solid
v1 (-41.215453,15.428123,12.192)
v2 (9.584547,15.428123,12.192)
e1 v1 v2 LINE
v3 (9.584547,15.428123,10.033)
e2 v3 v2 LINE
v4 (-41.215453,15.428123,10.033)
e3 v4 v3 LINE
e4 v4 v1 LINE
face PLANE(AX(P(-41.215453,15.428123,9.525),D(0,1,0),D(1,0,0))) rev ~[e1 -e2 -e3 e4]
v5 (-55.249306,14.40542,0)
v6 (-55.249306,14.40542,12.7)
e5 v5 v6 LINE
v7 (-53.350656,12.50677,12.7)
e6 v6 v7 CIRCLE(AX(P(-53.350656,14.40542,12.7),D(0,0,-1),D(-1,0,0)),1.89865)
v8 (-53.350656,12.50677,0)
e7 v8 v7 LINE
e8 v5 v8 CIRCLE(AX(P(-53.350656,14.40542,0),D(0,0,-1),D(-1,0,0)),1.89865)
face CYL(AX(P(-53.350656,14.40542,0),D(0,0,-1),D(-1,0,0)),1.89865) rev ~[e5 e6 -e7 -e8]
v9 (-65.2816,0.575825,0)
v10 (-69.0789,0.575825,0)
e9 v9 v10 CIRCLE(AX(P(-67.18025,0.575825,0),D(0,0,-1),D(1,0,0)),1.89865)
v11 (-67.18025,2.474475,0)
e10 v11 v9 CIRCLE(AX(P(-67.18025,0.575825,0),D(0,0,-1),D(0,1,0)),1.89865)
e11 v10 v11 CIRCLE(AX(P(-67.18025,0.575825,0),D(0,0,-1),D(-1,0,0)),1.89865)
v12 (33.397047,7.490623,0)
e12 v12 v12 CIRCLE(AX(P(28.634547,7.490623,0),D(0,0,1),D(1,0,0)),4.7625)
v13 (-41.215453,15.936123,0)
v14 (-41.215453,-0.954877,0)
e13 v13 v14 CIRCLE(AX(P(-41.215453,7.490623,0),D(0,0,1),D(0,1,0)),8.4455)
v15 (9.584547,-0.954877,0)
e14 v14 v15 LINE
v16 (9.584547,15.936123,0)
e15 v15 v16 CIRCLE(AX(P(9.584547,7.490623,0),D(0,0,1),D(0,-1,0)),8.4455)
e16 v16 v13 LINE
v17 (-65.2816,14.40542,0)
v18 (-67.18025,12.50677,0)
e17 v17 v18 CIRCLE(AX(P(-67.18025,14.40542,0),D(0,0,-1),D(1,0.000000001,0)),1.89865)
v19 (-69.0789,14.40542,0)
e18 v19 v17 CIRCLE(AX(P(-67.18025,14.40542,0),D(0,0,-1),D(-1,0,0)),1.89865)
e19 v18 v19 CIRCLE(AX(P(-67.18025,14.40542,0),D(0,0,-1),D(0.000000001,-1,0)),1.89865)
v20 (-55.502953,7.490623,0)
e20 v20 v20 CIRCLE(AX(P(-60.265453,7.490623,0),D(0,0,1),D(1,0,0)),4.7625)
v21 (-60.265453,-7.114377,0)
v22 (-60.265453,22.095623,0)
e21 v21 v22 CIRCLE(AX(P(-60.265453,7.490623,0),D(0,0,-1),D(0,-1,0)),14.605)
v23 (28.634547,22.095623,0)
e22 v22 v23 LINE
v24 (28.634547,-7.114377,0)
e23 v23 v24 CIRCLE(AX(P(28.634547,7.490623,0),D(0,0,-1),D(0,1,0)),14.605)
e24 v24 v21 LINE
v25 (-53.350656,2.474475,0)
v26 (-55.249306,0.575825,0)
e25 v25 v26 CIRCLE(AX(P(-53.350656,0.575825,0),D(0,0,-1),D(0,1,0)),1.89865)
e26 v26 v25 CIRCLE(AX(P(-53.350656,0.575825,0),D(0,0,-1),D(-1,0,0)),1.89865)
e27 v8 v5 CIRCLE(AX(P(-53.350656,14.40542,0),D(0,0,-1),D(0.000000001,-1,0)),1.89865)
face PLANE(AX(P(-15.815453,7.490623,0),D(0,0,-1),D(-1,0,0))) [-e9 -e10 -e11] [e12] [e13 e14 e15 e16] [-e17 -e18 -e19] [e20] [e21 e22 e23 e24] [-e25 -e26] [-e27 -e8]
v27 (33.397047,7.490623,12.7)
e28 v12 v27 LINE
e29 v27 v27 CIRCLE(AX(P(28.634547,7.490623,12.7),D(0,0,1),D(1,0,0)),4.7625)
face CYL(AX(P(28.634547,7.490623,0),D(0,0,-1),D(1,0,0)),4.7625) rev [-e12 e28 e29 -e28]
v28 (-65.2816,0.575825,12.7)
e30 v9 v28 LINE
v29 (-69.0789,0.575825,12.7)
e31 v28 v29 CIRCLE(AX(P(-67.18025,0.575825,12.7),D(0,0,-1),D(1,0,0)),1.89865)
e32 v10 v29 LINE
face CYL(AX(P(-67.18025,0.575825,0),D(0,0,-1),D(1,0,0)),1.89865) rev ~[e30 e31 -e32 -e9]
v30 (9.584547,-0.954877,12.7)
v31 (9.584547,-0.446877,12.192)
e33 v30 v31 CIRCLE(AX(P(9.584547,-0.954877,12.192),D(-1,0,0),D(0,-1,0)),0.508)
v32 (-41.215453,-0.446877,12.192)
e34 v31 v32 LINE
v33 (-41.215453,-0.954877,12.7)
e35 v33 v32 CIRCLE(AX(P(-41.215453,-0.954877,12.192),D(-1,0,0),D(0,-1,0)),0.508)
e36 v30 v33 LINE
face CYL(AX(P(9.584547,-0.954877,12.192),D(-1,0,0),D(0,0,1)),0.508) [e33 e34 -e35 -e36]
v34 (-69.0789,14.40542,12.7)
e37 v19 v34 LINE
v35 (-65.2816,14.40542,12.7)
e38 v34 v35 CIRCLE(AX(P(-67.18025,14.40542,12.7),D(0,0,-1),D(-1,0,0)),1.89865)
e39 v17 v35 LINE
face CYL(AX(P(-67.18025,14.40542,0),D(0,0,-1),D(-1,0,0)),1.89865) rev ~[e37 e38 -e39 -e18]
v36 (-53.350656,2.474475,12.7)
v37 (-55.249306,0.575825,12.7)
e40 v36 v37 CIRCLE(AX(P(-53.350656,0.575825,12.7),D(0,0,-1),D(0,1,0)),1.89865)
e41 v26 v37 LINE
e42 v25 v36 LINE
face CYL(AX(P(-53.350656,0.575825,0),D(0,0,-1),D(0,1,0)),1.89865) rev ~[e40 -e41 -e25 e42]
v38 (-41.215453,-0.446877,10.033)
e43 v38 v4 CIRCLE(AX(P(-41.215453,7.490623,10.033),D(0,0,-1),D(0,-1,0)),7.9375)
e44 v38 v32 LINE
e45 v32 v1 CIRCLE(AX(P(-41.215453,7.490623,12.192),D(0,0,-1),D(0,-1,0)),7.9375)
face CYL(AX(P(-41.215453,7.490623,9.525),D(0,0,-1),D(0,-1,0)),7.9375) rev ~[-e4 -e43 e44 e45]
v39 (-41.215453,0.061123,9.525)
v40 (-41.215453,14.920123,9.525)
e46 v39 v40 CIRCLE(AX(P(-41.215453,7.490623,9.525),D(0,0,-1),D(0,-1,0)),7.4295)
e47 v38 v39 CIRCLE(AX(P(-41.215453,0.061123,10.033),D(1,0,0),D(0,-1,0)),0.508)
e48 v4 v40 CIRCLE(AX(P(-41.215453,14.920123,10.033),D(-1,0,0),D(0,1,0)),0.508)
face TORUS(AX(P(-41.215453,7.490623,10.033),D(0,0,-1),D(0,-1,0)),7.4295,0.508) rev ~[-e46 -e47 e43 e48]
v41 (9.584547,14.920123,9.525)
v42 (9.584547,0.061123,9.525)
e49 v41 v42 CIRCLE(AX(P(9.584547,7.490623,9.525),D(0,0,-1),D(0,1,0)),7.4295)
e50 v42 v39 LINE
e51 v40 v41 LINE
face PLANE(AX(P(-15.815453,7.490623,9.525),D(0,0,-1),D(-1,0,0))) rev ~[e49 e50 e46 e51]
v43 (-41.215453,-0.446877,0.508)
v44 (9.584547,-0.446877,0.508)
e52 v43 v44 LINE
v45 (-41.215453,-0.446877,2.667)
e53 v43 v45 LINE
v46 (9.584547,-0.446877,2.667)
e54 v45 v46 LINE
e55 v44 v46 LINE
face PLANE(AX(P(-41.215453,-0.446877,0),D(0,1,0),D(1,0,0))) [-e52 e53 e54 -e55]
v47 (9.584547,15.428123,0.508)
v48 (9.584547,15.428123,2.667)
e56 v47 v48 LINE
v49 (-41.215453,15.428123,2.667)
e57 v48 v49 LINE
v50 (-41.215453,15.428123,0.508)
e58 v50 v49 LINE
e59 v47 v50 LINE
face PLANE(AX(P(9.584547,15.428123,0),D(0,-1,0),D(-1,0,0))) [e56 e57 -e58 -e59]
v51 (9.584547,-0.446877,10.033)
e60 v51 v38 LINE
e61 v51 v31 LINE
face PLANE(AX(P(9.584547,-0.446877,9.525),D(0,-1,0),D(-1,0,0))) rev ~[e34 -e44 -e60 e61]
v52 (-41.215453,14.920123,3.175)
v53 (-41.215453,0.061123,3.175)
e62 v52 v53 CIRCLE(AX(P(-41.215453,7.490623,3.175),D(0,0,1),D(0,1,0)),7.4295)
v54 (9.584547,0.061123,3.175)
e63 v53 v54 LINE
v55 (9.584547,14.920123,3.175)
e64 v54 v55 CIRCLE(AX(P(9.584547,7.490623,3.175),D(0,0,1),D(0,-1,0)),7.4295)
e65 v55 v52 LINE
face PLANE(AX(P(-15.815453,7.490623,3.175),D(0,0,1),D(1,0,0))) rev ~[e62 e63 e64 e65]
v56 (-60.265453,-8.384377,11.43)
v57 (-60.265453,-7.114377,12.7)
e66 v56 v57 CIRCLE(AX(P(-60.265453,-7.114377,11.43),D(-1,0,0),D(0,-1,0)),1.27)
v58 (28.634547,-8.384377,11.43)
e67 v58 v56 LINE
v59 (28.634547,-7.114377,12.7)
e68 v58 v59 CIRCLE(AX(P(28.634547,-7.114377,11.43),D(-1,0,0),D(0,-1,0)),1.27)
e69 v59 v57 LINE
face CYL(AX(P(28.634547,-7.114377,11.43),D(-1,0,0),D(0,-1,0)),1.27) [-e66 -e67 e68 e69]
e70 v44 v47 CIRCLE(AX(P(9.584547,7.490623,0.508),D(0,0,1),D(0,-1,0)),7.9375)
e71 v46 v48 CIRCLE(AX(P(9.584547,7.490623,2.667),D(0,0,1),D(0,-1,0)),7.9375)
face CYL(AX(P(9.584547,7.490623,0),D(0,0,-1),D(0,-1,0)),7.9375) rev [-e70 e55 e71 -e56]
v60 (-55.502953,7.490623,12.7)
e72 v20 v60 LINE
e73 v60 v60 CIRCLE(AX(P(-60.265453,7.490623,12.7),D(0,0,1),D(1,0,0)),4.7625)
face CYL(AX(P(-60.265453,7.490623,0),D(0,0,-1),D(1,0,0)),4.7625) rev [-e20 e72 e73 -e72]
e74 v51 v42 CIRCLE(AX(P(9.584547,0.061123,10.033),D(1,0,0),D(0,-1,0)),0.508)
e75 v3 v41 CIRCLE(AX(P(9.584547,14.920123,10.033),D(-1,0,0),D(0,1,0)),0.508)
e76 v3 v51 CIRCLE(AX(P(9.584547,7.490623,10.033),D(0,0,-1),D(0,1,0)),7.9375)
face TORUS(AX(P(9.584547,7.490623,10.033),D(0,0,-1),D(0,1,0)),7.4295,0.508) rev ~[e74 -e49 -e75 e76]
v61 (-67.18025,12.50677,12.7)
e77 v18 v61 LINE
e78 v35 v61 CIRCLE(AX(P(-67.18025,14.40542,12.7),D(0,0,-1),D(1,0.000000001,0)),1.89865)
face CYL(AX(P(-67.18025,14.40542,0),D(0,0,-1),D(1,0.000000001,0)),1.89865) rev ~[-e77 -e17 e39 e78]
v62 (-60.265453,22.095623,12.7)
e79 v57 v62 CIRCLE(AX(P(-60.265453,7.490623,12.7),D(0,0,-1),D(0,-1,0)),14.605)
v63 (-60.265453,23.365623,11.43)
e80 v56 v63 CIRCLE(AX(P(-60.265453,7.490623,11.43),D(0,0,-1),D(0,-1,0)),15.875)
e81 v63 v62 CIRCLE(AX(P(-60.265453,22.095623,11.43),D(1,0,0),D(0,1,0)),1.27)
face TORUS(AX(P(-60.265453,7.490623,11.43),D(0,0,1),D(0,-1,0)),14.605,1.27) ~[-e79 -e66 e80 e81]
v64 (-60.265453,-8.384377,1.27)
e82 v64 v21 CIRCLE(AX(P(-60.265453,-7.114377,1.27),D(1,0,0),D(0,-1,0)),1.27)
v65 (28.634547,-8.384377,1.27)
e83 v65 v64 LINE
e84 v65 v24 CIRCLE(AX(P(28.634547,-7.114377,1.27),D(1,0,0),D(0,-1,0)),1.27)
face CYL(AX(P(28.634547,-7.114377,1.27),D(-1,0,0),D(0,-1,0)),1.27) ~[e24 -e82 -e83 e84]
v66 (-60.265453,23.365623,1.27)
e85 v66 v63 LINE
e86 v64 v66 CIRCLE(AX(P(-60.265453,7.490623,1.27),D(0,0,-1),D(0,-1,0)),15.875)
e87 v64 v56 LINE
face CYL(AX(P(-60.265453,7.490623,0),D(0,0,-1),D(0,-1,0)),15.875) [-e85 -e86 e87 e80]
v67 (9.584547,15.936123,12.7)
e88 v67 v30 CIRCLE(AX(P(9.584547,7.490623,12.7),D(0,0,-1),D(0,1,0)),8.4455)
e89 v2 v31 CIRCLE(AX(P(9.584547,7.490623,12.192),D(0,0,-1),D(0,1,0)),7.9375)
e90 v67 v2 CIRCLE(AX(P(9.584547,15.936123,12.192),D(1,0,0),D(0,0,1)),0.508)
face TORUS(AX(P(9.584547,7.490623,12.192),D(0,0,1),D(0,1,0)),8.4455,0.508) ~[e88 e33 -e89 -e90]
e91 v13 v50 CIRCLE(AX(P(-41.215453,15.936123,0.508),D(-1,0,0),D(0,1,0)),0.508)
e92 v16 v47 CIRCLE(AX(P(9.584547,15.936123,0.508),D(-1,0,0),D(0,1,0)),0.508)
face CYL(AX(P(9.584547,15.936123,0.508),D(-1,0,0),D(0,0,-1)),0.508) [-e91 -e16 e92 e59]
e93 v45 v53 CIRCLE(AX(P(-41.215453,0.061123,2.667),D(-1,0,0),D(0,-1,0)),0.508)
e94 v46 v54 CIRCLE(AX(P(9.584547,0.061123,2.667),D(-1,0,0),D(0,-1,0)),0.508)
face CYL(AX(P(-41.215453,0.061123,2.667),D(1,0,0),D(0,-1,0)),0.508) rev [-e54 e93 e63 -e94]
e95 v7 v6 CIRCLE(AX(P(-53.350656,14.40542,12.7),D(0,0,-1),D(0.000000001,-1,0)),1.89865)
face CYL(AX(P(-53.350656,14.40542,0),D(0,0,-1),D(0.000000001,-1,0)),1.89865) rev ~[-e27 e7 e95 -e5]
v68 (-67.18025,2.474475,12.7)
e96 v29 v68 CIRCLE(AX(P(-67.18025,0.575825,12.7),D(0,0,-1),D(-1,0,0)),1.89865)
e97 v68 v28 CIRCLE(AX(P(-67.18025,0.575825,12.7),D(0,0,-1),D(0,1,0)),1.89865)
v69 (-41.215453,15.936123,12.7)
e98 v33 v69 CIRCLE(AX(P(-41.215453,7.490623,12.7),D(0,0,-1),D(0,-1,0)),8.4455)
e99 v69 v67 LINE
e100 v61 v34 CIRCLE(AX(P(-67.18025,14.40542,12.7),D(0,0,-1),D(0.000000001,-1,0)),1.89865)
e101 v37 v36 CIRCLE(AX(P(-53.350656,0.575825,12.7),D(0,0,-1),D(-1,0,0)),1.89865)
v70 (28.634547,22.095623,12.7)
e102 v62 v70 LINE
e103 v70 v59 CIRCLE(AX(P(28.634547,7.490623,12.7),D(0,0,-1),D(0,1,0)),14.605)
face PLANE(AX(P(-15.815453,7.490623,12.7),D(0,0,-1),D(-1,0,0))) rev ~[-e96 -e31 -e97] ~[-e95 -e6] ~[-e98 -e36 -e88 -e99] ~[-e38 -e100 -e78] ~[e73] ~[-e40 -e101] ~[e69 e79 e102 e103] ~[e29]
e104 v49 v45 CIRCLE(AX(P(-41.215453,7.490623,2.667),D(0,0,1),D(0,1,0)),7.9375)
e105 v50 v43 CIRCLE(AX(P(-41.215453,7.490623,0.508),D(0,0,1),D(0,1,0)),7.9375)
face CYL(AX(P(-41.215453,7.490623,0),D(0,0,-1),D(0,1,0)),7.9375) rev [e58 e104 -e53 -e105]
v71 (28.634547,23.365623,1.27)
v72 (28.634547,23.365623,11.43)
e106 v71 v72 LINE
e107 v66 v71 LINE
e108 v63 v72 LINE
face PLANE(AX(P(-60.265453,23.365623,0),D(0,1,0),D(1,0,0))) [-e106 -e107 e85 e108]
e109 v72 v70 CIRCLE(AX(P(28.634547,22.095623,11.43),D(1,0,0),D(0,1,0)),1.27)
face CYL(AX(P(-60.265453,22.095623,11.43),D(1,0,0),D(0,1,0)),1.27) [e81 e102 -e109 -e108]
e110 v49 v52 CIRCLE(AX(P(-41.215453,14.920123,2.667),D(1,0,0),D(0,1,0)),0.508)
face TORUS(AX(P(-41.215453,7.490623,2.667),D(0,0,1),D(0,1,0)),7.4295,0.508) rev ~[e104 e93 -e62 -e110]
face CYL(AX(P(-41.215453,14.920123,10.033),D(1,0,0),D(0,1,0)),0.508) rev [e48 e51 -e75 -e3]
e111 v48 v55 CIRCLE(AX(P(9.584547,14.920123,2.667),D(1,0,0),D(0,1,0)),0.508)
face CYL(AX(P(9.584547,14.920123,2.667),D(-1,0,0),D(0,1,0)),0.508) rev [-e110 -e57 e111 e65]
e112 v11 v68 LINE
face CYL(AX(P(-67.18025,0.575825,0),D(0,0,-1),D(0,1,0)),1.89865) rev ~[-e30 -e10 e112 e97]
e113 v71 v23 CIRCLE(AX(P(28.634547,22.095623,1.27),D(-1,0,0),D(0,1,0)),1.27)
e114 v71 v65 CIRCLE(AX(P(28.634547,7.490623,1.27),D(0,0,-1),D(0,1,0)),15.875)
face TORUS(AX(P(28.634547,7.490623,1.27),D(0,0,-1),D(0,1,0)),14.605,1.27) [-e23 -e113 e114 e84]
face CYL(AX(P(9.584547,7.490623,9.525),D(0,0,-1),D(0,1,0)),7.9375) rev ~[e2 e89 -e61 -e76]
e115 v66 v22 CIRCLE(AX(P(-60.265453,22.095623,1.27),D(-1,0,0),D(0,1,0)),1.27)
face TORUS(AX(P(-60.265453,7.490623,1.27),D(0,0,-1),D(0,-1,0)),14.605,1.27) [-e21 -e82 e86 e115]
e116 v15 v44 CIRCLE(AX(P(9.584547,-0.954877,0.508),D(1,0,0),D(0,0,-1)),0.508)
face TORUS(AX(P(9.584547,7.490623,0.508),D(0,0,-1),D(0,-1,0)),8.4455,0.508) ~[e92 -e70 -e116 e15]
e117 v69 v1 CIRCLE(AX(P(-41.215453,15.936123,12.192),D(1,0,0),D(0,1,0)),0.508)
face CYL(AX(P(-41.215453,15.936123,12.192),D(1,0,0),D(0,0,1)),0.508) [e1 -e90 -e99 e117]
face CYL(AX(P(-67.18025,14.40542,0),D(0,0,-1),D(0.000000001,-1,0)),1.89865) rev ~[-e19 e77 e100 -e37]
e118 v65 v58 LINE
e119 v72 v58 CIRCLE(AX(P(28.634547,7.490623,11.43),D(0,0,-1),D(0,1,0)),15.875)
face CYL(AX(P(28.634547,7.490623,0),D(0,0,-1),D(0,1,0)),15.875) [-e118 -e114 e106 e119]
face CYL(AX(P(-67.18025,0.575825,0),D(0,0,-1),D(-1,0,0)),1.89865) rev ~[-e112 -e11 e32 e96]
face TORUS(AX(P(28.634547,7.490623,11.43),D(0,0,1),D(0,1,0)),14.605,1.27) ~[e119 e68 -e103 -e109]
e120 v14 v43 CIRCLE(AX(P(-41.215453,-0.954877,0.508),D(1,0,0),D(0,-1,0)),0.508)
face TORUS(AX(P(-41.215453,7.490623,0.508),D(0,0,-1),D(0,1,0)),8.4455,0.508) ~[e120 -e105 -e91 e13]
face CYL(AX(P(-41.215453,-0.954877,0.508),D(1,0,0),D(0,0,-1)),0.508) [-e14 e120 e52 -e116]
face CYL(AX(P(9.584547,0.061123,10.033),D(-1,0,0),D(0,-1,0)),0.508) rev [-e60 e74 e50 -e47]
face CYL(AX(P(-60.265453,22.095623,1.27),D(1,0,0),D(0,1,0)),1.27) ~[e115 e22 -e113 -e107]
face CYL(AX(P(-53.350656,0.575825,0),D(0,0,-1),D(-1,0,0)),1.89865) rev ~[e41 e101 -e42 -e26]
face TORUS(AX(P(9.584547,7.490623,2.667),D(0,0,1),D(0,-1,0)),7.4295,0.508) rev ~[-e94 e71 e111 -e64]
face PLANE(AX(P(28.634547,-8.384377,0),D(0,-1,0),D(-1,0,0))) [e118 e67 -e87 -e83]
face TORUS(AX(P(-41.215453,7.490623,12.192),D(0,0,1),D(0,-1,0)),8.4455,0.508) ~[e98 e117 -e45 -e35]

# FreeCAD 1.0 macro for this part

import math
import FreeCAD as App
import Part
import Sketcher
from FreeCAD import Vector
Q = App.Units.Quantity


def edges_at(feature, points):
    """Names of the edges that pass closest to the given points."""
    edges = feature.Shape.Edges
    near = lambda p: min(range(len(edges)), key=lambda i: edges[i].distToShape(Part.Vertex(*p))[0])
    return sorted({f"Edge{near(p) + 1}" for p in points})

doc = App.newDocument("Part")
body = doc.addObject("PartDesign::Body", "Body")

# Sketch on XY plane
sketch1 = body.newObject("Sketcher::SketchObject", "Sketch")
sketch1.AttachmentSupport = (doc.getObject("XY_Plane"), [""])
sketch1.MapMode = "FlatFace"
sketch1.addGeometry([
    Part.LineSegment(Vector(28.6, 23.4, 0), Vector(-60.3, 23.4, 0)),  # 0
    Part.ArcOfCircle(Part.Circle(Vector(-60.3, 7.5, 0), Vector(0, 0, 1), 15.9), math.radians(90), math.radians(270)),  # 1
    Part.LineSegment(Vector(-60.3, -8.4, 0), Vector(28.6, -8.4, 0)),  # 2
    Part.ArcOfCircle(Part.Circle(Vector(28.6, 7.5, 0), Vector(0, 0, 1), 15.9), math.radians(-90), math.radians(90)),  # 3
    Part.Circle(Vector(28.6, 7.5, 0), Vector(0, 0, 1), 4.8),  # 4
    Part.Circle(Vector(-60.3, 7.5, 0), Vector(0, 0, 1), 4.8),  # 5
], False)
sketch1.addConstraint([
    Sketcher.Constraint("Tangent", 0, 2, 1, 1),
    Sketcher.Constraint("Tangent", 1, 2, 2, 1),
    Sketcher.Constraint("Tangent", 2, 2, 3, 1),
    Sketcher.Constraint("Tangent", 3, 2, 0, 1),
    Sketcher.Constraint("Horizontal", 0),
    Sketcher.Constraint("Horizontal", 2),
    Sketcher.Constraint("Coincident", 4, 3, 3, 3),
    Sketcher.Constraint("Coincident", 5, 3, 1, 3),
    Sketcher.Constraint("Equal", 4, 5),
    Sketcher.Constraint("Diameter", 4, Q("0.375 in")),
    Sketcher.Constraint("DistanceX", 0, 2, 0, 1, Q("3.5 in")),
    Sketcher.Constraint("Radius", 1, Q("0.625 in")),
    Sketcher.Constraint("DistanceX", 1, 3, -1, 1, Q("60.265453 mm")),
    Sketcher.Constraint("DistanceY", -1, 1, 1, 3, Q("7.490623 mm")),
])
pad1 = body.newObject("PartDesign::Pad", "Pad")
pad1.Profile = sketch1
pad1.Length = Q("0.5 in")

# Sketch on XY plane
sketch2 = body.newObject("Sketcher::SketchObject", "Sketch001")
sketch2.AttachmentSupport = (doc.getObject("XY_Plane"), [""])
sketch2.MapMode = "FlatFace"
sketch2.addGeometry([
    Part.ArcOfCircle(Part.Circle(Vector(-53.4, 14.4, 0), Vector(0, 0, 1), 1.9), math.radians(-90), math.radians(180)),  # 0
    Part.ArcOfCircle(Part.Circle(Vector(-53.4, 14.4, 0), Vector(0, 0, 1), 1.9), math.radians(180), math.radians(270)),  # 1
    Part.ArcOfCircle(Part.Circle(Vector(-53.4, 0.6, 0), Vector(0, 0, 1), 1.9), math.radians(180), math.radians(450)),  # 2
    Part.ArcOfCircle(Part.Circle(Vector(-53.4, 0.6, 0), Vector(0, 0, 1), 1.9), math.radians(90), math.radians(180)),  # 3
    Part.ArcOfCircle(Part.Circle(Vector(-67.2, 0.6, 0), Vector(0, 0, 1), 1.9), math.radians(0), math.radians(90)),  # 4
    Part.ArcOfCircle(Part.Circle(Vector(-67.2, 0.6, 0), Vector(0, 0, 1), 1.9), math.radians(180), math.radians(360)),  # 5
    Part.ArcOfCircle(Part.Circle(Vector(-67.2, 0.6, 0), Vector(0, 0, 1), 1.9), math.radians(90), math.radians(180)),  # 6
    Part.ArcOfCircle(Part.Circle(Vector(-67.2, 14.4, 0), Vector(0, 0, 1), 1.9), math.radians(-90), math.radians(0)),  # 7
    Part.ArcOfCircle(Part.Circle(Vector(-67.2, 14.4, 0), Vector(0, 0, 1), 1.9), math.radians(180), math.radians(270)),  # 8
    Part.ArcOfCircle(Part.Circle(Vector(-67.2, 14.4, 0), Vector(0, 0, 1), 1.9), math.radians(0), math.radians(180)),  # 9
], False)
sketch2.addConstraint([
    Sketcher.Constraint("Tangent", 0, 1, 1, 2),
    Sketcher.Constraint("Coincident", 1, 1, 0, 2),
    Sketcher.Constraint("Tangent", 2, 1, 3, 2),
    Sketcher.Constraint("Coincident", 3, 1, 2, 2),
    Sketcher.Constraint("Tangent", 4, 1, 5, 2),
    Sketcher.Constraint("Tangent", 5, 1, 6, 2),
    Sketcher.Constraint("Tangent", 6, 1, 4, 2),
    Sketcher.Constraint("Tangent", 7, 1, 8, 2),
    Sketcher.Constraint("Tangent", 8, 1, 9, 2),
    Sketcher.Constraint("Tangent", 9, 1, 7, 2),
    Sketcher.Constraint("Equal", 1, 2),
    Sketcher.Constraint("Equal", 3, 4),
    Sketcher.Constraint("Equal", 6, 7),
    Sketcher.Constraint("Horizontal", 3, 3, 4, 3),
    Sketcher.Constraint("Horizontal", 1, 3, 7, 3),
    Sketcher.Constraint("Horizontal", 9, 3, 1, 1),
    Sketcher.Constraint("Horizontal", 6, 3, 2, 1),
    Sketcher.Constraint("Horizontal", 2, 1, 4, 1),
    Sketcher.Constraint("Horizontal", 4, 1, 5, 1),
    Sketcher.Constraint("Horizontal", 1, 1, 8, 1),
    Sketcher.Constraint("Horizontal", 8, 1, 9, 1),
    Sketcher.Constraint("Vertical", 1, 3, 2, 3),
    Sketcher.Constraint("Vertical", 6, 3, 7, 3),
    Sketcher.Constraint("Vertical", 3, 3, 0, 1),
    Sketcher.Constraint("Vertical", 0, 1, 3, 1),
    Sketcher.Constraint("Vertical", 9, 3, 6, 1),
    Sketcher.Constraint("Vertical", 6, 1, 7, 1),
    Sketcher.Constraint("Radius", 0, Q("1.89865 mm")),
    Sketcher.Constraint("DistanceX", 4, 1, -1, 1, Q("65.2816 mm")),
    Sketcher.Constraint("DistanceY", -1, 1, 0, 3, Q("14.40542 mm")),
    Sketcher.Constraint("DistanceX", 0, 3, -1, 1, Q("53.350656 mm")),
    Sketcher.Constraint("DistanceY", -1, 1, 2, 3, Q("0.575825 mm")),
])
pocket1 = body.newObject("PartDesign::Pocket", "Pocket")
pocket1.Profile = sketch2
pocket1.Length = Q("0.5 in")
pocket1.Reversed = True
doc.recompute()

fillet = body.newObject("PartDesign::Fillet", "Fillet")
fillet.Base = (pocket1, edges_at(pocket1, [
    (44.51, 7.491, 12.7),
    (-15.815, 23.366, 12.7),
    (-76.14, 7.491, 12.7),
    (-15.815, 23.366, 0),
    (44.51, 7.491, 0),
    (-15.815, -8.384, 0),
    (-76.14, 7.491, 0),
    (-15.815, -8.384, 12.7),
]))
fillet.Radius = Q("0.05 in")

# Sketch on XY plane
sketch3 = body.newObject("Sketcher::SketchObject", "Sketch002")
sketch3.AttachmentSupport = (doc.getObject("XY_Plane"), [""])
sketch3.MapMode = "FlatFace"
sketch3.addGeometry([
    Part.LineSegment(Vector(10, 0, 0), Vector(-41, 0, 0)),
    Part.ArcOfCircle(Part.Circle(Vector(-41, 7, 0), Vector(0, 0, 1), 8), math.radians(90), math.radians(270)),
    Part.LineSegment(Vector(-41, 15, 0), Vector(10, 15, 0)),
    Part.ArcOfCircle(Part.Circle(Vector(10, 7, 0), Vector(0, 0, 1), 8), math.radians(-90), math.radians(90)),
], False)
sketch3.addConstraint([
    Sketcher.Constraint("Tangent", 0, 2, 1, 2),
    Sketcher.Constraint("Tangent", 1, 1, 2, 1),
    Sketcher.Constraint("Tangent", 2, 2, 3, 2),
    Sketcher.Constraint("Tangent", 3, 1, 0, 1),
    Sketcher.Constraint("Horizontal", 0),
    Sketcher.Constraint("Horizontal", 2),
    Sketcher.Constraint("DistanceX", 0, 2, 0, 1, Q("2 in")),
    Sketcher.Constraint("Radius", 1, Q("0.3125 in")),
    Sketcher.Constraint("DistanceX", 1, 3, -1, 1, Q("41.215453 mm")),
    Sketcher.Constraint("DistanceY", -1, 1, 1, 3, Q("7.490623 mm")),
])
pocket2 = body.newObject("PartDesign::Pocket", "Pocket001")
pocket2.Profile = sketch3
pocket2.Length = Q("0.125 in")
pocket2.Reversed = True

# Sketch on XY plane
sketch4 = body.newObject("Sketcher::SketchObject", "Sketch003")
sketch4.AttachmentSupport = (doc.getObject("XY_Plane"), [""])
sketch4.MapMode = "FlatFace"
sketch4.AttachmentOffset = App.Placement(Vector(0, 0, 0.375 * 25.4), App.Rotation())
sketch4.addGeometry([
    Part.LineSegment(Vector(10, 15, 0), Vector(-41, 15, 0)),
    Part.ArcOfCircle(Part.Circle(Vector(-41, 7, 0), Vector(0, 0, 1), 8), math.radians(90), math.radians(270)),
    Part.LineSegment(Vector(-41, 0, 0), Vector(10, 0, 0)),
    Part.ArcOfCircle(Part.Circle(Vector(10, 7, 0), Vector(0, 0, 1), 8), math.radians(-90), math.radians(90)),
], False)
sketch4.addConstraint([
    Sketcher.Constraint("Tangent", 0, 2, 1, 1),
    Sketcher.Constraint("Tangent", 1, 2, 2, 1),
    Sketcher.Constraint("Tangent", 2, 2, 3, 1),
    Sketcher.Constraint("Tangent", 3, 2, 0, 1),
    Sketcher.Constraint("Horizontal", 0),
    Sketcher.Constraint("Horizontal", 2),
    Sketcher.Constraint("DistanceX", 0, 2, 0, 1, Q("2 in")),
    Sketcher.Constraint("Radius", 1, Q("0.3125 in")),
    Sketcher.Constraint("DistanceX", 1, 3, -1, 1, Q("41.215453 mm")),
    Sketcher.Constraint("DistanceY", -1, 1, 1, 3, Q("7.490623 mm")),
])
pocket3 = body.newObject("PartDesign::Pocket", "Pocket002")
pocket3.Profile = sketch4
pocket3.Length = Q("0.125 in")
pocket3.Reversed = True
doc.recompute()

fillet2 = body.newObject("PartDesign::Fillet", "Fillet001")
fillet2.Base = (pocket3, edges_at(pocket3, [
    (-49.153, 7.491, 3.175),
    (-15.815, -0.447, 3.175),
    (17.522, 7.491, 3.175),
    (-15.815, 15.428, 3.175),
    (-49.153, 7.491, 0),
    (-15.815, 15.428, 0),
    (17.522, 7.491, 0),
    (-15.815, -0.447, 0),
    (-49.153, 7.491, 9.525),
    (-15.815, 15.428, 9.525),
    (17.522, 7.491, 9.525),
    (-15.815, -0.447, 9.525),
    (-49.153, 7.491, 12.7),
    (-15.815, -0.447, 12.7),
    (17.522, 7.491, 12.7),
    (-15.815, 15.428, 12.7),
]))
fillet2.Radius = Q("0.02 in")

doc.recompute()
